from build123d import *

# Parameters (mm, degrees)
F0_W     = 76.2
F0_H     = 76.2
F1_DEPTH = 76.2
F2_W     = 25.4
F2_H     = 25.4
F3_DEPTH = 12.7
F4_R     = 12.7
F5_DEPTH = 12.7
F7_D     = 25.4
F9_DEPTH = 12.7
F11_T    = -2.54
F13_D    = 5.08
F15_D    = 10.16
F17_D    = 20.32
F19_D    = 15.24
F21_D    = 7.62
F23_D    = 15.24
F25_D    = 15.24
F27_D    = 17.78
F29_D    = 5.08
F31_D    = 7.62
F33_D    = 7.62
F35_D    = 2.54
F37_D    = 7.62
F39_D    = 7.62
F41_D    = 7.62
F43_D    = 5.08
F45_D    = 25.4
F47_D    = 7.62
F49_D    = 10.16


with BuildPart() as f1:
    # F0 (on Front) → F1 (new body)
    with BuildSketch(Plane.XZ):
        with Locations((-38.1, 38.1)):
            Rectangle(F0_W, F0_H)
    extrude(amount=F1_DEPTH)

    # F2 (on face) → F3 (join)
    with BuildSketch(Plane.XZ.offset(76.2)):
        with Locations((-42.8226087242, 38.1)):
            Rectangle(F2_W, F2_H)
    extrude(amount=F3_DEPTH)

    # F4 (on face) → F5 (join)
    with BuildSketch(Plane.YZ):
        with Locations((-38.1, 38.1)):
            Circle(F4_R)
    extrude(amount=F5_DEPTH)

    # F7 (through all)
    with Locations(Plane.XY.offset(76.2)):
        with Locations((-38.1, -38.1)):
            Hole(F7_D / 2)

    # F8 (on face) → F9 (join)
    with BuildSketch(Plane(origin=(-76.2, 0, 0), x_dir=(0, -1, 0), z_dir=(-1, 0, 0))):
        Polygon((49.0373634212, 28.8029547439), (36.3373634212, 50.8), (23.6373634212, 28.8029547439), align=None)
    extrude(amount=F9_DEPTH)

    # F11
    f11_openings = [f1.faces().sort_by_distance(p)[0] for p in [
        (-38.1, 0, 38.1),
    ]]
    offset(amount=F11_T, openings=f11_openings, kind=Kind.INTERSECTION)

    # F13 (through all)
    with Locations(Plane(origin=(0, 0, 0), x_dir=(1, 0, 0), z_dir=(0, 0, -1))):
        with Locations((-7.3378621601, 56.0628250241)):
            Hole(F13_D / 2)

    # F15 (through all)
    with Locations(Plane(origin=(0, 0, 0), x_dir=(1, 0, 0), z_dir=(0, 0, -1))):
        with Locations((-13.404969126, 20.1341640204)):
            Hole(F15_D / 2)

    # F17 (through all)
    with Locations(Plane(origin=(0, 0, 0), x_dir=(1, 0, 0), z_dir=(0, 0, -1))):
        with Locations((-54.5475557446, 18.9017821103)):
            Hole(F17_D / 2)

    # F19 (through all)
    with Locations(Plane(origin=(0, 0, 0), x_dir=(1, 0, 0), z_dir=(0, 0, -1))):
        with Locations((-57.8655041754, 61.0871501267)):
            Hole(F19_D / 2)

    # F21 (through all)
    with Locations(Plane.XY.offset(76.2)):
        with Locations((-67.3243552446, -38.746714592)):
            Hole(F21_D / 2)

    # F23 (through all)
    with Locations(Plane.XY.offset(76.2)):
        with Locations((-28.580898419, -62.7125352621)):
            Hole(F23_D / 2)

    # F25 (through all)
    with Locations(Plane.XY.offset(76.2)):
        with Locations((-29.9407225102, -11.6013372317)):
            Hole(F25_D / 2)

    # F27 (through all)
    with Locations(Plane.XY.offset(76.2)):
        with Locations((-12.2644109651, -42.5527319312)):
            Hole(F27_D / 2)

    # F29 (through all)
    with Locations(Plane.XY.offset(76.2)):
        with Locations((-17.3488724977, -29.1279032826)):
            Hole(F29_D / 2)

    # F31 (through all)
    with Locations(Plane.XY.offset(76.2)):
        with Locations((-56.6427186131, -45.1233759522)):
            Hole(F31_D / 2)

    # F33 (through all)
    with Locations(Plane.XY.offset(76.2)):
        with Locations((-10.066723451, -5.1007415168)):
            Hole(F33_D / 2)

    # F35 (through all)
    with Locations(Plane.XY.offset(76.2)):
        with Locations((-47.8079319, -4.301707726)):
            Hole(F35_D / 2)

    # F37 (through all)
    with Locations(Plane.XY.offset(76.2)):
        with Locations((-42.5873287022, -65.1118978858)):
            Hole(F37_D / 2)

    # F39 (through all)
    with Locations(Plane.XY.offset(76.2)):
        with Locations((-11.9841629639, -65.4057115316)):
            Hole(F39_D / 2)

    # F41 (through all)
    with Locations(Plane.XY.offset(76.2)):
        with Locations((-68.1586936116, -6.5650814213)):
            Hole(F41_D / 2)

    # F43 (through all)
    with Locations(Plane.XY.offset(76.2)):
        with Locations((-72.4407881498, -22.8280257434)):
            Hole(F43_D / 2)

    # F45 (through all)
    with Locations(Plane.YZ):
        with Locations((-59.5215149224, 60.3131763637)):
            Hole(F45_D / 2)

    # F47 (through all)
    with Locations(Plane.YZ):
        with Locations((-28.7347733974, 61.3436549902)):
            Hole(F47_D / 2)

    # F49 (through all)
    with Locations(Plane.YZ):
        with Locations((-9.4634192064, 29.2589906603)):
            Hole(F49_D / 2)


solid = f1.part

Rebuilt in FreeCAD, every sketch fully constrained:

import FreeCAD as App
import Part
import Sketcher

V = App.Vector
Q = App.Units.Quantity


def faces_at(feature, points):
    """Names of the faces that lie closest to the given points."""
    faces = feature.Shape.Faces
    near = lambda p: min(range(len(faces)), key=lambda i: faces[i].distToShape(Part.Vertex(*p))[0])
    return sorted({f"Face{near(p) + 1}" for p in points})


def add_polygon(sketch, points):
    """Adds a closed chain of lines whose ends are joined by coincident constraints."""
    first, n = sketch.GeometryCount, len(points)
    for a, b in zip(points, points[1:] + points[:1]):
        sketch.addGeometry(Part.LineSegment(App.Vector(*a, 0), App.Vector(*b, 0)), False)
    for i in range(n):
        sketch.addConstraint(Sketcher.Constraint("Coincident", first + i, 2, first + (i + 1) % n, 1))

doc = App.newDocument("Part")
body = doc.addObject("PartDesign::Body", "Body")

# Sketch on XZ plane
sketch1 = body.newObject("Sketcher::SketchObject", "Sketch")
sketch1.AttachmentSupport = (doc.getObject("XZ_Plane"), [""])
sketch1.MapMode = "FlatFace"
add_polygon(sketch1, [(-76, 76), (-76, 0), (0, 0), (0, 76)])  # lines 0-3
sketch1.addConstraint([
    Sketcher.Constraint("Vertical", 0),
    Sketcher.Constraint("Horizontal", 1),
    Sketcher.Constraint("Vertical", 2),
    Sketcher.Constraint("Horizontal", 3),
    Sketcher.Constraint("Coincident", 1, 2, -1, 1),
    Sketcher.Constraint("Equal", 3, 0),
    Sketcher.Constraint("DistanceX", 1, 1, 1, 2, Q("3 in")),
])
pad1 = body.newObject("PartDesign::Pad", "Pad")
pad1.Profile = sketch1
pad1.Length = Q("3 in")

# Sketch on XZ plane
sketch2 = body.newObject("Sketcher::SketchObject", "Sketch001")
sketch2.AttachmentSupport = (doc.getObject("XZ_Plane"), [""])
sketch2.MapMode = "FlatFace"
sketch2.AttachmentOffset = App.Placement(V(0, 0, 3 * 25.4), App.Rotation())
add_polygon(sketch2, [(-56, 51), (-56, 25), (-30, 25), (-30, 51)])  # lines 0-3
sketch2.addConstraint([
    Sketcher.Constraint("Vertical", 0),
    Sketcher.Constraint("Horizontal", 1),
    Sketcher.Constraint("Vertical", 2),
    Sketcher.Constraint("Horizontal", 3),
    Sketcher.Constraint("Equal", 3, 0),
    Sketcher.Constraint("DistanceX", 1, 1, 1, 2, Q("1 in")),
    Sketcher.Constraint("DistanceY", -1, 1, 0, 2, Q("1 in")),
    Sketcher.Constraint("DistanceX", 0, 2, -1, 1, Q("55.522609 mm")),
])
pad2 = body.newObject("PartDesign::Pad", "Pad001")
pad2.Profile = sketch2
pad2.Length = Q("0.5 in")

# Sketch on YZ plane
sketch3 = body.newObject("Sketcher::SketchObject", "Sketch002")
sketch3.AttachmentSupport = (doc.getObject("YZ_Plane"), [""])
sketch3.MapMode = "FlatFace"
sketch3.addGeometry(Part.Circle(V(-38, 38, 0), V(0, 0, 1), 13), False)
sketch3.addConstraint([
    Sketcher.Constraint("Diameter", 0, Q("1 in")),
    Sketcher.Constraint("DistanceX", 0, 3, -1, 1, Q("1.5 in")),
    Sketcher.Constraint("DistanceY", -1, 1, 0, 3, Q("1.5 in")),
])
pad3 = body.newObject("PartDesign::Pad", "Pad002")
pad3.Profile = sketch3
pad3.Length = Q("0.5 in")

# Sketch on XY plane
sketch4 = body.newObject("Sketcher::SketchObject", "Sketch003")
sketch4.AttachmentSupport = (doc.getObject("XY_Plane"), [""])
sketch4.MapMode = "FlatFace"
sketch4.AttachmentOffset = App.Placement(V(0, 0, 3 * 25.4), App.Rotation())
sketch4.addGeometry(Part.Circle(V(-38, -38, 0), V(0, 0, 1), 13), False)
sketch4.addConstraint([
    Sketcher.Constraint("Diameter", 0, Q("1 in")),
    Sketcher.Constraint("DistanceX", 0, 3, -1, 1, Q("1.5 in")),
    Sketcher.Constraint("DistanceY", 0, 3, -1, 1, Q("1.5 in")),
])
doc.recompute()
hole = body.newObject("PartDesign::Hole", "Hole")
hole.Profile = sketch4
hole.ThreadType = "None"
hole.Diameter = Q("1 in")
hole.DepthType = "ThroughAll"

# Sketch on YZ plane
sketch5 = body.newObject("Sketcher::SketchObject", "Sketch004")
sketch5.AttachmentSupport = (doc.getObject("YZ_Plane"), [""])
sketch5.MapMode = "FlatFace"
sketch5.AttachmentOffset = App.Placement(V(0, 0, -3 * 25.4), App.Rotation())
add_polygon(sketch5, [(-49, 29), (-36, 51), (-24, 29)])  # lines 0-2
sketch5.addConstraint([
    Sketcher.Constraint("Horizontal", 2),
    Sketcher.Constraint("Equal", 0, 1),
    Sketcher.Constraint("DistanceX", 2, 2, 2, 1, Q("1 in")),
    Sketcher.Constraint("Distance", 0, Q("1 in")),
    Sketcher.Constraint("DistanceY", -1, 1, 0, 2, Q("2 in")),
    Sketcher.Constraint("DistanceX", 0, 2, -1, 1, Q("36.337363 mm")),
])
pad4 = body.newObject("PartDesign::Pad", "Pad003")
pad4.Profile = sketch5
pad4.Length = Q("0.5 in")
pad4.Reversed = True
doc.recompute()

thickness = body.newObject("PartDesign::Thickness", "Thickness")
thickness.Base = (pad4, faces_at(pad4, [(-38.1, 0, 38.1)]))
thickness.Value = Q("0.1 in")
thickness.Reversed = True
thickness.Join = "Intersection"

# Sketch on XY plane
sketch6 = body.newObject("Sketcher::SketchObject", "Sketch005")
sketch6.AttachmentSupport = (doc.getObject("XY_Plane"), [""])
sketch6.MapMode = "FlatFace"
sketch6.addGeometry(Part.Circle(V(-7.3, -56.1, 0), V(0, 0, 1), 2.5), False)
sketch6.addConstraint([
    Sketcher.Constraint("Diameter", 0, Q("0.2 in")),
    Sketcher.Constraint("DistanceX", 0, 3, -1, 1, Q("7.337862 mm")),
    Sketcher.Constraint("DistanceY", 0, 3, -1, 1, Q("56.062825 mm")),
])
doc.recompute()
hole2 = body.newObject("PartDesign::Hole", "Hole001")
hole2.Profile = sketch6
hole2.ThreadType = "None"
hole2.Diameter = Q("0.2 in")
hole2.DepthType = "ThroughAll"
hole2.Reversed = True

# Sketch on XY plane
sketch7 = body.newObject("Sketcher::SketchObject", "Sketch006")
sketch7.AttachmentSupport = (doc.getObject("XY_Plane"), [""])
sketch7.MapMode = "FlatFace"
sketch7.addGeometry(Part.Circle(V(-13, -20, 0), V(0, 0, 1), 5), False)
sketch7.addConstraint([
    Sketcher.Constraint("Diameter", 0, Q("0.4 in")),
    Sketcher.Constraint("DistanceX", 0, 3, -1, 1, Q("13.404969 mm")),
    Sketcher.Constraint("DistanceY", 0, 3, -1, 1, Q("20.134164 mm")),
])
doc.recompute()
hole3 = body.newObject("PartDesign::Hole", "Hole002")
hole3.Profile = sketch7
hole3.ThreadType = "None"
hole3.Diameter = Q("0.4 in")
hole3.DepthType = "ThroughAll"
hole3.Reversed = True

# Sketch on XY plane
sketch8 = body.newObject("Sketcher::SketchObject", "Sketch007")
sketch8.AttachmentSupport = (doc.getObject("XY_Plane"), [""])
sketch8.MapMode = "FlatFace"
sketch8.addGeometry(Part.Circle(V(-55, -19, 0), V(0, 0, 1), 10), False)
sketch8.addConstraint([
    Sketcher.Constraint("Diameter", 0, Q("0.8 in")),
    Sketcher.Constraint("DistanceX", 0, 3, -1, 1, Q("54.547556 mm")),
    Sketcher.Constraint("DistanceY", 0, 3, -1, 1, Q("18.901782 mm")),
])
doc.recompute()
hole4 = body.newObject("PartDesign::Hole", "Hole003")
hole4.Profile = sketch8
hole4.ThreadType = "None"
hole4.Diameter = Q("0.8 in")
hole4.DepthType = "ThroughAll"
hole4.Reversed = True

# Sketch on XY plane
sketch9 = body.newObject("Sketcher::SketchObject", "Sketch008")
sketch9.AttachmentSupport = (doc.getObject("XY_Plane"), [""])
sketch9.MapMode = "FlatFace"
sketch9.addGeometry(Part.Circle(V(-58, -61, 0), V(0, 0, 1), 8), False)
sketch9.addConstraint([
    Sketcher.Constraint("Diameter", 0, Q("0.6 in")),
    Sketcher.Constraint("DistanceY", 0, 3, -1, 1, Q("61.08715 mm")),
    Sketcher.Constraint("DistanceX", 0, 3, -1, 1, Q("57.865504 mm")),
])
doc.recompute()
hole5 = body.newObject("PartDesign::Hole", "Hole004")
hole5.Profile = sketch9
hole5.ThreadType = "None"
hole5.Diameter = Q("0.6 in")
hole5.DepthType = "ThroughAll"
hole5.Reversed = True

# Sketch on XY plane
sketch10 = body.newObject("Sketcher::SketchObject", "Sketch009")
sketch10.AttachmentSupport = (doc.getObject("XY_Plane"), [""])
sketch10.MapMode = "FlatFace"
sketch10.AttachmentOffset = App.Placement(V(0, 0, 3 * 25.4), App.Rotation())
sketch10.addGeometry(Part.Circle(V(-67.3, -38.7, 0), V(0, 0, 1), 3.8), False)
sketch10.addConstraint([
    Sketcher.Constraint("Diameter", 0, Q("0.3 in")),
    Sketcher.Constraint("DistanceX", 0, 3, -1, 1, Q("67.324355 mm")),
    Sketcher.Constraint("DistanceY", 0, 3, -1, 1, Q("38.746715 mm")),
])
doc.recompute()
hole6 = body.newObject("PartDesign::Hole", "Hole005")
hole6.Profile = sketch10
hole6.ThreadType = "None"
hole6.Diameter = Q("0.3 in")
hole6.DepthType = "ThroughAll"

# Sketch on XY plane
sketch11 = body.newObject("Sketcher::SketchObject", "Sketch010")
sketch11.AttachmentSupport = (doc.getObject("XY_Plane"), [""])
sketch11.MapMode = "FlatFace"
sketch11.AttachmentOffset = App.Placement(V(0, 0, 3 * 25.4), App.Rotation())
sketch11.addGeometry(Part.Circle(V(-29, -63, 0), V(0, 0, 1), 8), False)
sketch11.addConstraint([
    Sketcher.Constraint("Diameter", 0, Q("0.6 in")),
    Sketcher.Constraint("DistanceX", 0, 3, -1, 1, Q("28.580898 mm")),
    Sketcher.Constraint("DistanceY", 0, 3, -1, 1, Q("62.712535 mm")),
])
doc.recompute()
hole7 = body.newObject("PartDesign::Hole", "Hole006")
hole7.Profile = sketch11
hole7.ThreadType = "None"
hole7.Diameter = Q("0.6 in")
hole7.DepthType = "ThroughAll"

# Sketch on XY plane
sketch12 = body.newObject("Sketcher::SketchObject", "Sketch011")
sketch12.AttachmentSupport = (doc.getObject("XY_Plane"), [""])
sketch12.MapMode = "FlatFace"
sketch12.AttachmentOffset = App.Placement(V(0, 0, 3 * 25.4), App.Rotation())
sketch12.addGeometry(Part.Circle(V(-30, -12, 0), V(0, 0, 1), 8), False)
sketch12.addConstraint([
    Sketcher.Constraint("Diameter", 0, Q("0.6 in")),
    Sketcher.Constraint("DistanceX", 0, 3, -1, 1, Q("29.940723 mm")),
    Sketcher.Constraint("DistanceY", 0, 3, -1, 1, Q("11.601337 mm")),
])
doc.recompute()
hole8 = body.newObject("PartDesign::Hole", "Hole007")
hole8.Profile = sketch12
hole8.ThreadType = "None"
hole8.Diameter = Q("0.6 in")
hole8.DepthType = "ThroughAll"

# Sketch on XY plane
sketch13 = body.newObject("Sketcher::SketchObject", "Sketch012")
sketch13.AttachmentSupport = (doc.getObject("XY_Plane"), [""])
sketch13.MapMode = "FlatFace"
sketch13.AttachmentOffset = App.Placement(V(0, 0, 3 * 25.4), App.Rotation())
sketch13.addGeometry(Part.Circle(V(-12, -43, 0), V(0, 0, 1), 9), False)
sketch13.addConstraint([
    Sketcher.Constraint("Diameter", 0, Q("0.7 in")),
    Sketcher.Constraint("DistanceX", 0, 3, -1, 1, Q("12.264411 mm")),
    Sketcher.Constraint("DistanceY", 0, 3, -1, 1, Q("42.552732 mm")),
])
doc.recompute()
hole9 = body.newObject("PartDesign::Hole", "Hole008")
hole9.Profile = sketch13
hole9.ThreadType = "None"
hole9.Diameter = Q("0.7 in")
hole9.DepthType = "ThroughAll"

# Sketch on XY plane
sketch14 = body.newObject("Sketcher::SketchObject", "Sketch013")
sketch14.AttachmentSupport = (doc.getObject("XY_Plane"), [""])
sketch14.MapMode = "FlatFace"
sketch14.AttachmentOffset = App.Placement(V(0, 0, 3 * 25.4), App.Rotation())
sketch14.addGeometry(Part.Circle(V(-17.3, -29.1, 0), V(0, 0, 1), 2.5), False)
sketch14.addConstraint([
    Sketcher.Constraint("Diameter", 0, Q("0.2 in")),
    Sketcher.Constraint("DistanceX", 0, 3, -1, 1, Q("17.348872 mm")),
    Sketcher.Constraint("DistanceY", 0, 3, -1, 1, Q("29.127903 mm")),
])
doc.recompute()
hole10 = body.newObject("PartDesign::Hole", "Hole009")
hole10.Profile = sketch14
hole10.ThreadType = "None"
hole10.Diameter = Q("0.2 in")
hole10.DepthType = "ThroughAll"

# Sketch on XY plane
sketch15 = body.newObject("Sketcher::SketchObject", "Sketch014")
sketch15.AttachmentSupport = (doc.getObject("XY_Plane"), [""])
sketch15.MapMode = "FlatFace"
sketch15.AttachmentOffset = App.Placement(V(0, 0, 3 * 25.4), App.Rotation())
sketch15.addGeometry(Part.Circle(V(-56.6, -45.1, 0), V(0, 0, 1), 3.8), False)
sketch15.addConstraint([
    Sketcher.Constraint("Diameter", 0, Q("0.3 in")),
    Sketcher.Constraint("DistanceX", 0, 3, -1, 1, Q("56.642719 mm")),
    Sketcher.Constraint("DistanceY", 0, 3, -1, 1, Q("45.123376 mm")),
])
doc.recompute()
hole11 = body.newObject("PartDesign::Hole", "Hole010")
hole11.Profile = sketch15
hole11.ThreadType = "None"
hole11.Diameter = Q("0.3 in")
hole11.DepthType = "ThroughAll"

# Sketch on XY plane
sketch16 = body.newObject("Sketcher::SketchObject", "Sketch015")
sketch16.AttachmentSupport = (doc.getObject("XY_Plane"), [""])
sketch16.MapMode = "FlatFace"
sketch16.AttachmentOffset = App.Placement(V(0, 0, 3 * 25.4), App.Rotation())
sketch16.addGeometry(Part.Circle(V(-10.1, -5.1, 0), V(0, 0, 1), 3.8), False)
sketch16.addConstraint([
    Sketcher.Constraint("Diameter", 0, Q("0.3 in")),
    Sketcher.Constraint("DistanceY", 0, 3, -1, 1, Q("5.100742 mm")),
    Sketcher.Constraint("DistanceX", 0, 3, -1, 1, Q("10.066723 mm")),
])
doc.recompute()
hole12 = body.newObject("PartDesign::Hole", "Hole011")
hole12.Profile = sketch16
hole12.ThreadType = "None"
hole12.Diameter = Q("0.3 in")
hole12.DepthType = "ThroughAll"

# Sketch on XY plane
sketch17 = body.newObject("Sketcher::SketchObject", "Sketch016")
sketch17.AttachmentSupport = (doc.getObject("XY_Plane"), [""])
sketch17.MapMode = "FlatFace"
sketch17.AttachmentOffset = App.Placement(V(0, 0, 3 * 25.4), App.Rotation())
sketch17.addGeometry(Part.Circle(V(-47.8, -4.3, 0), V(0, 0, 1), 1.3), False)
sketch17.addConstraint([
    Sketcher.Constraint("Diameter", 0, Q("0.1 in")),
    Sketcher.Constraint("DistanceX", 0, 3, -1, 1, Q("47.807932 mm")),
    Sketcher.Constraint("DistanceY", 0, 3, -1, 1, Q("4.301708 mm")),
])
doc.recompute()
hole13 = body.newObject("PartDesign::Hole", "Hole012")
hole13.Profile = sketch17
hole13.ThreadType = "None"
hole13.Diameter = Q("0.1 in")
hole13.DepthType = "ThroughAll"

# Sketch on XY plane
sketch18 = body.newObject("Sketcher::SketchObject", "Sketch017")
sketch18.AttachmentSupport = (doc.getObject("XY_Plane"), [""])
sketch18.MapMode = "FlatFace"
sketch18.AttachmentOffset = App.Placement(V(0, 0, 3 * 25.4), App.Rotation())
sketch18.addGeometry(Part.Circle(V(-42.6, -65.1, 0), V(0, 0, 1), 3.8), False)
sketch18.addConstraint([
    Sketcher.Constraint("Diameter", 0, Q("0.3 in")),
    Sketcher.Constraint("DistanceX", 0, 3, -1, 1, Q("42.587329 mm")),
    Sketcher.Constraint("DistanceY", 0, 3, -1, 1, Q("65.111898 mm")),
])
doc.recompute()
hole14 = body.newObject("PartDesign::Hole", "Hole013")
hole14.Profile = sketch18
hole14.ThreadType = "None"
hole14.Diameter = Q("0.3 in")
hole14.DepthType = "ThroughAll"

# Sketch on XY plane
sketch19 = body.newObject("Sketcher::SketchObject", "Sketch018")
sketch19.AttachmentSupport = (doc.getObject("XY_Plane"), [""])
sketch19.MapMode = "FlatFace"
sketch19.AttachmentOffset = App.Placement(V(0, 0, 3 * 25.4), App.Rotation())
sketch19.addGeometry(Part.Circle(V(-12, -65.4, 0), V(0, 0, 1), 3.8), False)
sketch19.addConstraint([
    Sketcher.Constraint("Diameter", 0, Q("0.3 in")),
    Sketcher.Constraint("DistanceY", 0, 3, -1, 1, Q("65.405712 mm")),
    Sketcher.Constraint("DistanceX", 0, 3, -1, 1, Q("11.984163 mm")),
])
doc.recompute()
hole15 = body.newObject("PartDesign::Hole", "Hole014")
hole15.Profile = sketch19
hole15.ThreadType = "None"
hole15.Diameter = Q("0.3 in")
hole15.DepthType = "ThroughAll"

# Sketch on XY plane
sketch20 = body.newObject("Sketcher::SketchObject", "Sketch019")
sketch20.AttachmentSupport = (doc.getObject("XY_Plane"), [""])
sketch20.MapMode = "FlatFace"
sketch20.AttachmentOffset = App.Placement(V(0, 0, 3 * 25.4), App.Rotation())
sketch20.addGeometry(Part.Circle(V(-68.2, -6.6, 0), V(0, 0, 1), 3.8), False)
sketch20.addConstraint([
    Sketcher.Constraint("Diameter", 0, Q("0.3 in")),
    Sketcher.Constraint("DistanceY", 0, 3, -1, 1, Q("6.565081 mm")),
    Sketcher.Constraint("DistanceX", 0, 3, -1, 1, Q("68.158694 mm")),
])
doc.recompute()
hole16 = body.newObject("PartDesign::Hole", "Hole015")
hole16.Profile = sketch20
hole16.ThreadType = "None"
hole16.Diameter = Q("0.3 in")
hole16.DepthType = "ThroughAll"

# Sketch on XY plane
sketch21 = body.newObject("Sketcher::SketchObject", "Sketch020")
sketch21.AttachmentSupport = (doc.getObject("XY_Plane"), [""])
sketch21.MapMode = "FlatFace"
sketch21.AttachmentOffset = App.Placement(V(0, 0, 3 * 25.4), App.Rotation())
sketch21.addGeometry(Part.Circle(V(-72.4, -22.8, 0), V(0, 0, 1), 2.5), False)
sketch21.addConstraint([
    Sketcher.Constraint("Diameter", 0, Q("0.2 in")),
    Sketcher.Constraint("DistanceX", 0, 3, -1, 1, Q("72.440788 mm")),
    Sketcher.Constraint("DistanceY", 0, 3, -1, 1, Q("22.828026 mm")),
])
doc.recompute()
hole17 = body.newObject("PartDesign::Hole", "Hole016")
hole17.Profile = sketch21
hole17.ThreadType = "None"
hole17.Diameter = Q("0.2 in")
hole17.DepthType = "ThroughAll"

# Sketch on YZ plane
sketch22 = body.newObject("Sketcher::SketchObject", "Sketch021")
sketch22.AttachmentSupport = (doc.getObject("YZ_Plane"), [""])
sketch22.MapMode = "FlatFace"
sketch22.addGeometry(Part.Circle(V(-60, 60, 0), V(0, 0, 1), 13), False)
sketch22.addConstraint([
    Sketcher.Constraint("Diameter", 0, Q("1 in")),
    Sketcher.Constraint("DistanceX", 0, 3, -1, 1, Q("59.521515 mm")),
    Sketcher.Constraint("DistanceY", -1, 1, 0, 3, Q("60.313176 mm")),
])
doc.recompute()
hole18 = body.newObject("PartDesign::Hole", "Hole017")
hole18.Profile = sketch22
hole18.ThreadType = "None"
hole18.Diameter = Q("1 in")
hole18.DepthType = "ThroughAll"

# Sketch on YZ plane
sketch23 = body.newObject("Sketcher::SketchObject", "Sketch022")
sketch23.AttachmentSupport = (doc.getObject("YZ_Plane"), [""])
sketch23.MapMode = "FlatFace"
sketch23.addGeometry(Part.Circle(V(-28.7, 61.3, 0), V(0, 0, 1), 3.8), False)
sketch23.addConstraint([
    Sketcher.Constraint("Diameter", 0, Q("0.3 in")),
    Sketcher.Constraint("DistanceX", 0, 3, -1, 1, Q("28.734773 mm")),
    Sketcher.Constraint("DistanceY", -1, 1, 0, 3, Q("61.343655 mm")),
])
doc.recompute()
hole19 = body.newObject("PartDesign::Hole", "Hole018")
hole19.Profile = sketch23
hole19.ThreadType = "None"
hole19.Diameter = Q("0.3 in")
hole19.DepthType = "ThroughAll"

# Sketch on YZ plane
sketch24 = body.newObject("Sketcher::SketchObject", "Sketch023")
sketch24.AttachmentSupport = (doc.getObject("YZ_Plane"), [""])
sketch24.MapMode = "FlatFace"
sketch24.addGeometry(Part.Circle(V(-9, 29, 0), V(0, 0, 1), 5), False)
sketch24.addConstraint([
    Sketcher.Constraint("Diameter", 0, Q("0.4 in")),
    Sketcher.Constraint("DistanceX", 0, 3, -1, 1, Q("9.463419 mm")),
    Sketcher.Constraint("DistanceY", -1, 1, 0, 3, Q("29.258991 mm")),
])
doc.recompute()
hole20 = body.newObject("PartDesign::Hole", "Hole019")
hole20.Profile = sketch24
hole20.ThreadType = "None"
hole20.Diameter = Q("0.4 in")
hole20.DepthType = "ThroughAll"

doc.recompute()
